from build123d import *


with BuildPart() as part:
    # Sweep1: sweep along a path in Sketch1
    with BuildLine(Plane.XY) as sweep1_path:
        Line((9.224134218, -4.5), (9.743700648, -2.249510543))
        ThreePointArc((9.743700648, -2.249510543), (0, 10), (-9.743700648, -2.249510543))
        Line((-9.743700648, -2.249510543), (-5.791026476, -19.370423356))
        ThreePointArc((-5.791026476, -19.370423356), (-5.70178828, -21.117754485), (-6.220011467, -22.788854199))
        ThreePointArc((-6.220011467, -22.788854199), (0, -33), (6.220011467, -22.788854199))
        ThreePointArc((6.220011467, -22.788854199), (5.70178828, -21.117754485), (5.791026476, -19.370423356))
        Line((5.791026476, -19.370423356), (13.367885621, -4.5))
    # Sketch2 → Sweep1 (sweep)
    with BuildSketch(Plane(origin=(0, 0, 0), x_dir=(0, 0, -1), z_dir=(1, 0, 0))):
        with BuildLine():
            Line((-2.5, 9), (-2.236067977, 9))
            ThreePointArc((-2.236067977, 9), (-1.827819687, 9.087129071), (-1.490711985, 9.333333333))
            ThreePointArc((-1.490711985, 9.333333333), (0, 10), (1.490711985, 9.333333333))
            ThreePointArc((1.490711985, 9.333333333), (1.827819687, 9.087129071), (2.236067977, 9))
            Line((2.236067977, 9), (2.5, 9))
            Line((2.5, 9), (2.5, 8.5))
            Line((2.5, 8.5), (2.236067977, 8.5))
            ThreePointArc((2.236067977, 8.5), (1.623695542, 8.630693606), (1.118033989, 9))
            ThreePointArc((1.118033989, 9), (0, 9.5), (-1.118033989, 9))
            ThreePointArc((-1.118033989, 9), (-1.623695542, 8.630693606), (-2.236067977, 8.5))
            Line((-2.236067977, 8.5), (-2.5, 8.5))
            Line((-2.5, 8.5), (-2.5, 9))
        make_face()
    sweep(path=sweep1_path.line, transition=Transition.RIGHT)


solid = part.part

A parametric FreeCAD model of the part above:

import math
import FreeCAD as App
import Part
import Sketcher
Q = App.Units.Quantity

doc = App.newDocument("Part")
params = doc.addObject("Spreadsheet::Sheet", "Params")
for row, (alias, value) in enumerate([
    ("sketch1_radius", "1 mm"),
    ("sketch1_radius2", "2 mm"),
    ("sketch2_radius", "10 mm"),
    ("sketch2_radius2", "5 mm"),
    ("sketch2_radius3", "7 mm"),
], start=1):
    params.set(f"A{row}", alias)
    params.set(f"B{row}", "=" + value)
    params.setAlias(f"B{row}", alias)

body = doc.addObject("PartDesign::Body", "Body")

# Sketch on YZ plane
sketch1 = body.newObject("Sketcher::SketchObject", "Sketch")
sketch1.AttachmentSupport = (doc.getObject("YZ_Plane"), [""])
sketch1.MapMode = "FlatFace"
sketch1.addGeometry(Part.LineSegment(App.Vector(9, 2.236068, 0), App.Vector(9, 2.5, 0)), False)
sketch1.addGeometry(Part.LineSegment(App.Vector(9, 2.5, 0), App.Vector(8.5, 2.5, 0)), False)
sketch1.addGeometry(Part.LineSegment(App.Vector(8.5, 2.5, 0), App.Vector(8.5, 2.236068, 0)), False)
sketch1.addGeometry(Part.ArcOfCircle(Part.Circle(App.Vector(10, 2.236068, 0), App.Vector(0, 0, 1), 1.5), math.radians(180), math.radians(228.189685)), False)
sketch1.addGeometry(Part.ArcOfCircle(Part.Circle(App.Vector(8, 0, 0), App.Vector(0, 0, 1), 1.5), math.radians(-48.189685), math.radians(48.189685)), False)
sketch1.addGeometry(Part.ArcOfCircle(Part.Circle(App.Vector(10, -2.236068, 0), App.Vector(0, 0, 1), 1.5), math.radians(131.810315), math.radians(180)), False)
sketch1.addGeometry(Part.LineSegment(App.Vector(8.5, -2.236068, 0), App.Vector(8.5, -2.5, 0)), False)
sketch1.addGeometry(Part.LineSegment(App.Vector(8.5, -2.5, 0), App.Vector(9, -2.5, 0)), False)
sketch1.addGeometry(Part.LineSegment(App.Vector(9, -2.5, 0), App.Vector(9, -2.236068, 0)), False)
sketch1.addGeometry(Part.ArcOfCircle(Part.Circle(App.Vector(10, -2.236068, 0), App.Vector(0, 0, 1), 1), math.radians(131.810315), math.radians(180)), False)
sketch1.addGeometry(Part.ArcOfCircle(Part.Circle(App.Vector(8, 0, 0), App.Vector(0, 0, 1), 2), math.radians(-48.189685), math.radians(48.189685)), False)
sketch1.addGeometry(Part.ArcOfCircle(Part.Circle(App.Vector(10, 2.236068, 0), App.Vector(0, 0, 1), 1), math.radians(-180), math.radians(-131.810315)), False)
sketch1.addConstraint(Sketcher.Constraint("Coincident", 0, 2, 1, 1))
sketch1.addConstraint(Sketcher.Constraint("Coincident", 1, 2, 2, 1))
sketch1.addConstraint(Sketcher.Constraint("Tangent", 2, 2, 3, 1))
sketch1.addConstraint(Sketcher.Constraint("Tangent", 3, 2, 4, 2))
sketch1.addConstraint(Sketcher.Constraint("Tangent", 4, 1, 5, 1))
sketch1.addConstraint(Sketcher.Constraint("Tangent", 5, 2, 6, 1))
sketch1.addConstraint(Sketcher.Constraint("Coincident", 6, 2, 7, 1))
sketch1.addConstraint(Sketcher.Constraint("Coincident", 7, 2, 8, 1))
sketch1.addConstraint(Sketcher.Constraint("Tangent", 8, 2, 9, 2))
sketch1.addConstraint(Sketcher.Constraint("Tangent", 9, 1, 10, 1))
sketch1.addConstraint(Sketcher.Constraint("Tangent", 10, 2, 11, 2))
sketch1.addConstraint(Sketcher.Constraint("Tangent", 11, 1, 0, 1))
sketch1.addConstraint(Sketcher.Constraint("Vertical", 0))
sketch1.addConstraint(Sketcher.Constraint("Horizontal", 1))
sketch1.addConstraint(Sketcher.Constraint("Vertical", 2))
sketch1.addConstraint(Sketcher.Constraint("Vertical", 6))
sketch1.addConstraint(Sketcher.Constraint("Horizontal", 7))
sketch1.addConstraint(Sketcher.Constraint("Vertical", 8))
sketch1.addConstraint(Sketcher.Constraint("Coincident", 9, 3, 5, 3))
sketch1.addConstraint(Sketcher.Constraint("Coincident", 10, 3, 4, 3))
sketch1.addConstraint(Sketcher.Constraint("Coincident", 11, 3, 3, 3))
sketch1.addConstraint(Sketcher.Constraint("Equal", 3, 4))
sketch1.addConstraint(Sketcher.Constraint("Equal", 4, 5))
sketch1.addConstraint(Sketcher.Constraint("Symmetric", 3, 3, 5, 3, -1))
sketch1.addConstraint(Sketcher.Constraint("Vertical", 0, 2, 3, 2))
sketch1.addConstraint(Sketcher.Constraint("Equal", 2, 6))
sketch1.addConstraint(Sketcher.Constraint("Radius", 9, Q("1 mm")))
sketch1.addConstraint(Sketcher.Constraint("Radius", 10, Q("2 mm")))
sketch1.addConstraint(Sketcher.Constraint("DistanceX", -1, 1, 3, 3, Q("10 mm")))
sketch1.addConstraint(Sketcher.Constraint("DistanceY", -1, 1, 0, 2, Q("2.5 mm")))
sketch1.setExpression("Constraints[26]", "Params.sketch1_radius")
sketch1.setExpression("Constraints[27]", "Params.sketch1_radius2")

# Sketch on XY plane
sketch2 = body.newObject("Sketcher::SketchObject", "Sketch001")
sketch2.AttachmentSupport = (doc.getObject("XY_Plane"), [""])
sketch2.MapMode = "FlatFace"
sketch2.addGeometry(Part.LineSegment(App.Vector(9.224134, -4.5, 0), App.Vector(9.743701, -2.249511, 0)), False)
sketch2.addGeometry(Part.ArcOfCircle(Part.Circle(App.Vector(0, 0, 0), App.Vector(0, 0, 1), 10), math.radians(-13), math.radians(193)), False)
sketch2.addGeometry(Part.LineSegment(App.Vector(-9.743701, -2.249511, 0), App.Vector(-5.791026, -19.370423, 0)), False)
sketch2.addGeometry(Part.ArcOfCircle(Part.Circle(App.Vector(-10.662877, -20.495179, 0), App.Vector(0, 0, 1), 5), math.radians(-27.305517), math.radians(13)), False)
sketch2.addGeometry(Part.ArcOfCircle(Part.Circle(App.Vector(0, -26, 0), App.Vector(0, 0, 1), 7), math.radians(152.694483), math.radians(387.305517)), False)
sketch2.addGeometry(Part.ArcOfCircle(Part.Circle(App.Vector(10.662877, -20.495179, 0), App.Vector(0, 0, 1), 5), math.radians(167), math.radians(207.305517)), False)
sketch2.addGeometry(Part.LineSegment(App.Vector(5.791026, -19.370423, 0), App.Vector(13.367886, -4.5, 0)), False)
sketch2.addConstraint(Sketcher.Constraint("Tangent", 0, 2, 1, 1))
sketch2.addConstraint(Sketcher.Constraint("Tangent", 1, 2, 2, 1))
sketch2.addConstraint(Sketcher.Constraint("Tangent", 2, 2, 3, 2))
sketch2.addConstraint(Sketcher.Constraint("Tangent", 3, 1, 4, 1))
sketch2.addConstraint(Sketcher.Constraint("Tangent", 4, 2, 5, 2))
sketch2.addConstraint(Sketcher.Constraint("Coincident", 5, 1, 6, 1))
sketch2.addConstraint(Sketcher.Constraint("Coincident", 1, 3, -1, 1))
sketch2.addConstraint(Sketcher.Constraint("Equal", 3, 5))
sketch2.addConstraint(Sketcher.Constraint("Symmetric", 3, 3, 5, 3, -2))
sketch2.addConstraint(Sketcher.Constraint("Horizontal", 0, 2, 1, 2))
sketch2.addConstraint(Sketcher.Constraint("Horizontal", 2, 2, 5, 1))
sketch2.addConstraint(Sketcher.Constraint("Horizontal", 0, 1, 6, 2))
sketch2.addConstraint(Sketcher.Constraint("Radius", 1, Q("10 mm")))
sketch2.addConstraint(Sketcher.Constraint("Radius", 3, Q("5 mm")))
sketch2.addConstraint(Sketcher.Constraint("Radius", 4, Q("7 mm")))
sketch2.addConstraint(Sketcher.Constraint("Angle", 0, Q("77 deg")))
sketch2.addConstraint(Sketcher.Constraint("Angle", 6, Q("63 deg")))
sketch2.addConstraint(Sketcher.Constraint("DistanceY", 4, 3, -1, 1, Q("26 mm")))
sketch2.addConstraint(Sketcher.Constraint("DistanceY", 0, 1, -1, 1, Q("4.5 mm")))
sketch2.setExpression("Constraints[12]", "Params.sketch2_radius")
sketch2.setExpression("Constraints[13]", "Params.sketch2_radius2")
sketch2.setExpression("Constraints[14]", "Params.sketch2_radius3")
doc.recompute()

additivepipe = body.newObject("PartDesign::AdditivePipe", "AdditivePipe")
additivepipe.Profile = sketch1
additivepipe.Spine = (sketch2, ["Edge1", "Edge2", "Edge3", "Edge4", "Edge5", "Edge6", "Edge7"])
additivepipe.Transition = "Right corner"

doc.recompute()
